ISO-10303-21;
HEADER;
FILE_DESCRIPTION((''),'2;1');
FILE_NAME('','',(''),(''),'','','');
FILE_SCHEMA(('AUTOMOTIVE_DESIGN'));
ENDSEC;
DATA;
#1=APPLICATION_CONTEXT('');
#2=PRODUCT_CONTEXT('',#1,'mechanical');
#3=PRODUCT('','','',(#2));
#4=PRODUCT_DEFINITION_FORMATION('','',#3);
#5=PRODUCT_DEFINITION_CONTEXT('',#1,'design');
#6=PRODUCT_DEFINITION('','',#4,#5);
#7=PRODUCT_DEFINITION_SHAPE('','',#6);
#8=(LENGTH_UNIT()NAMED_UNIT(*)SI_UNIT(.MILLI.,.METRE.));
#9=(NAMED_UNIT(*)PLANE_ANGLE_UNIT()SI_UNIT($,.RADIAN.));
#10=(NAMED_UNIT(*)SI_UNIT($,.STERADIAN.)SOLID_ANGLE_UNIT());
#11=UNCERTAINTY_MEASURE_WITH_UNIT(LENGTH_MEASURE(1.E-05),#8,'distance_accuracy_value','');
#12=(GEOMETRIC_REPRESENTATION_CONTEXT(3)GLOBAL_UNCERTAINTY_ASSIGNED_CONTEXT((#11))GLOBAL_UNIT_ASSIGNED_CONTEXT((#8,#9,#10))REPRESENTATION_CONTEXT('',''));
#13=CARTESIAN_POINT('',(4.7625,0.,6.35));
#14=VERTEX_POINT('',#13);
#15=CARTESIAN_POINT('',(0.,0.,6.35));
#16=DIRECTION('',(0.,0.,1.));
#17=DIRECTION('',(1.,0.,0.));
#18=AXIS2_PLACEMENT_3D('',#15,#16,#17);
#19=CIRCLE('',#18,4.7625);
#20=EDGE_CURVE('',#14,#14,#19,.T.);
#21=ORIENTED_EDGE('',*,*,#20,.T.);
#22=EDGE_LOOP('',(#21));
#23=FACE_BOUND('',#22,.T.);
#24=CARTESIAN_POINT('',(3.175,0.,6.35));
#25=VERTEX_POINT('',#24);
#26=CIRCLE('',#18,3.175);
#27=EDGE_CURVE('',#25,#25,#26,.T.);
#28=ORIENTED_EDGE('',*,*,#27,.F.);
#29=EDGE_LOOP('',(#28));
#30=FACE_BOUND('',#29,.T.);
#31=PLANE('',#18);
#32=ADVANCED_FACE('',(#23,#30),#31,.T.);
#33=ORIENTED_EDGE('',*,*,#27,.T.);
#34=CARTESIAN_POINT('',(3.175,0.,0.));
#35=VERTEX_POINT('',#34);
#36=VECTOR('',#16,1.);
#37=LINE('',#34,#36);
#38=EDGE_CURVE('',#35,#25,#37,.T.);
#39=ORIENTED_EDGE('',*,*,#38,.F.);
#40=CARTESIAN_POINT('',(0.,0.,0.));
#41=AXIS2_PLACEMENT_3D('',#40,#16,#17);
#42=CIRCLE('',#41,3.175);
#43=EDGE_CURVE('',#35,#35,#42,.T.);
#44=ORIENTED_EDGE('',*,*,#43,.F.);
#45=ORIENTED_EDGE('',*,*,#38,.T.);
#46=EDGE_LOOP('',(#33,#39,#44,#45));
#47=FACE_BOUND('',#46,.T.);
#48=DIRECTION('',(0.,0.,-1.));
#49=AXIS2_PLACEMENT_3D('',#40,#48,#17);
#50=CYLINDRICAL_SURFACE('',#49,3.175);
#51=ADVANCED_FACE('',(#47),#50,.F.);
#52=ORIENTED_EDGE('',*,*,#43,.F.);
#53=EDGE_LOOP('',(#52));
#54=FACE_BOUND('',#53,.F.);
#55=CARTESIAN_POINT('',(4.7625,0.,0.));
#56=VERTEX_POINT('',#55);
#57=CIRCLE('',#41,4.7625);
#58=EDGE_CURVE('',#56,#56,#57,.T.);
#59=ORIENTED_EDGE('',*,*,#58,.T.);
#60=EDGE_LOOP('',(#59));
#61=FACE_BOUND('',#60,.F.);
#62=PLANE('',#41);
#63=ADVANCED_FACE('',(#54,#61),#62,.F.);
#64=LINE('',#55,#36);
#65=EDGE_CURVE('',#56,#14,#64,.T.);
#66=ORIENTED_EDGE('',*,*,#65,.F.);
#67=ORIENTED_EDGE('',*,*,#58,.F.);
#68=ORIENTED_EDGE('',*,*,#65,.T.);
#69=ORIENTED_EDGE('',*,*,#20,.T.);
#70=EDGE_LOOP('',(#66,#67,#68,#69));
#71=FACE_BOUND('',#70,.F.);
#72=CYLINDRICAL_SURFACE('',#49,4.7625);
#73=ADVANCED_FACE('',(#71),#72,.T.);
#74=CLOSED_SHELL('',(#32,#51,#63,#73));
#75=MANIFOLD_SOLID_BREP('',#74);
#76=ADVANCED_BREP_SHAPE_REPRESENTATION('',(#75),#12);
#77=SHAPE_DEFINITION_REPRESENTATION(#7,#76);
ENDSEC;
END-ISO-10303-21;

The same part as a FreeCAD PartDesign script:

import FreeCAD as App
import Part
import Sketcher

V = App.Vector
Q = App.Units.Quantity

doc = App.newDocument("Part")
body = doc.addObject("PartDesign::Body", "Body")

sketch1 = body.newObject("Sketcher::SketchObject", "Sketch")
sketch1.AttachmentSupport = (doc.getObject("XY_Plane"), [""])
sketch1.MapMode = "FlatFace"
sketch1.addGeometry([
    Part.Circle(V(0, 0, 0), V(0, 0, 1), 4.8),
    Part.Circle(V(0, 0, 0), V(0, 0, 1), 3.2),
], False)
sketch1.addConstraint([
    Sketcher.Constraint("Coincident", 0, 3, -1, 1),
    Sketcher.Constraint("Coincident", 1, 3, -1, 1),
    Sketcher.Constraint("Diameter", 1, Q("0.25 in")),
    Sketcher.Constraint("Diameter", 0, Q("0.375 in")),
])
pad1 = body.newObject("PartDesign::Pad", "Pad")
pad1.Profile = sketch1
pad1.Length = Q("0.25 in")

doc.recompute()
